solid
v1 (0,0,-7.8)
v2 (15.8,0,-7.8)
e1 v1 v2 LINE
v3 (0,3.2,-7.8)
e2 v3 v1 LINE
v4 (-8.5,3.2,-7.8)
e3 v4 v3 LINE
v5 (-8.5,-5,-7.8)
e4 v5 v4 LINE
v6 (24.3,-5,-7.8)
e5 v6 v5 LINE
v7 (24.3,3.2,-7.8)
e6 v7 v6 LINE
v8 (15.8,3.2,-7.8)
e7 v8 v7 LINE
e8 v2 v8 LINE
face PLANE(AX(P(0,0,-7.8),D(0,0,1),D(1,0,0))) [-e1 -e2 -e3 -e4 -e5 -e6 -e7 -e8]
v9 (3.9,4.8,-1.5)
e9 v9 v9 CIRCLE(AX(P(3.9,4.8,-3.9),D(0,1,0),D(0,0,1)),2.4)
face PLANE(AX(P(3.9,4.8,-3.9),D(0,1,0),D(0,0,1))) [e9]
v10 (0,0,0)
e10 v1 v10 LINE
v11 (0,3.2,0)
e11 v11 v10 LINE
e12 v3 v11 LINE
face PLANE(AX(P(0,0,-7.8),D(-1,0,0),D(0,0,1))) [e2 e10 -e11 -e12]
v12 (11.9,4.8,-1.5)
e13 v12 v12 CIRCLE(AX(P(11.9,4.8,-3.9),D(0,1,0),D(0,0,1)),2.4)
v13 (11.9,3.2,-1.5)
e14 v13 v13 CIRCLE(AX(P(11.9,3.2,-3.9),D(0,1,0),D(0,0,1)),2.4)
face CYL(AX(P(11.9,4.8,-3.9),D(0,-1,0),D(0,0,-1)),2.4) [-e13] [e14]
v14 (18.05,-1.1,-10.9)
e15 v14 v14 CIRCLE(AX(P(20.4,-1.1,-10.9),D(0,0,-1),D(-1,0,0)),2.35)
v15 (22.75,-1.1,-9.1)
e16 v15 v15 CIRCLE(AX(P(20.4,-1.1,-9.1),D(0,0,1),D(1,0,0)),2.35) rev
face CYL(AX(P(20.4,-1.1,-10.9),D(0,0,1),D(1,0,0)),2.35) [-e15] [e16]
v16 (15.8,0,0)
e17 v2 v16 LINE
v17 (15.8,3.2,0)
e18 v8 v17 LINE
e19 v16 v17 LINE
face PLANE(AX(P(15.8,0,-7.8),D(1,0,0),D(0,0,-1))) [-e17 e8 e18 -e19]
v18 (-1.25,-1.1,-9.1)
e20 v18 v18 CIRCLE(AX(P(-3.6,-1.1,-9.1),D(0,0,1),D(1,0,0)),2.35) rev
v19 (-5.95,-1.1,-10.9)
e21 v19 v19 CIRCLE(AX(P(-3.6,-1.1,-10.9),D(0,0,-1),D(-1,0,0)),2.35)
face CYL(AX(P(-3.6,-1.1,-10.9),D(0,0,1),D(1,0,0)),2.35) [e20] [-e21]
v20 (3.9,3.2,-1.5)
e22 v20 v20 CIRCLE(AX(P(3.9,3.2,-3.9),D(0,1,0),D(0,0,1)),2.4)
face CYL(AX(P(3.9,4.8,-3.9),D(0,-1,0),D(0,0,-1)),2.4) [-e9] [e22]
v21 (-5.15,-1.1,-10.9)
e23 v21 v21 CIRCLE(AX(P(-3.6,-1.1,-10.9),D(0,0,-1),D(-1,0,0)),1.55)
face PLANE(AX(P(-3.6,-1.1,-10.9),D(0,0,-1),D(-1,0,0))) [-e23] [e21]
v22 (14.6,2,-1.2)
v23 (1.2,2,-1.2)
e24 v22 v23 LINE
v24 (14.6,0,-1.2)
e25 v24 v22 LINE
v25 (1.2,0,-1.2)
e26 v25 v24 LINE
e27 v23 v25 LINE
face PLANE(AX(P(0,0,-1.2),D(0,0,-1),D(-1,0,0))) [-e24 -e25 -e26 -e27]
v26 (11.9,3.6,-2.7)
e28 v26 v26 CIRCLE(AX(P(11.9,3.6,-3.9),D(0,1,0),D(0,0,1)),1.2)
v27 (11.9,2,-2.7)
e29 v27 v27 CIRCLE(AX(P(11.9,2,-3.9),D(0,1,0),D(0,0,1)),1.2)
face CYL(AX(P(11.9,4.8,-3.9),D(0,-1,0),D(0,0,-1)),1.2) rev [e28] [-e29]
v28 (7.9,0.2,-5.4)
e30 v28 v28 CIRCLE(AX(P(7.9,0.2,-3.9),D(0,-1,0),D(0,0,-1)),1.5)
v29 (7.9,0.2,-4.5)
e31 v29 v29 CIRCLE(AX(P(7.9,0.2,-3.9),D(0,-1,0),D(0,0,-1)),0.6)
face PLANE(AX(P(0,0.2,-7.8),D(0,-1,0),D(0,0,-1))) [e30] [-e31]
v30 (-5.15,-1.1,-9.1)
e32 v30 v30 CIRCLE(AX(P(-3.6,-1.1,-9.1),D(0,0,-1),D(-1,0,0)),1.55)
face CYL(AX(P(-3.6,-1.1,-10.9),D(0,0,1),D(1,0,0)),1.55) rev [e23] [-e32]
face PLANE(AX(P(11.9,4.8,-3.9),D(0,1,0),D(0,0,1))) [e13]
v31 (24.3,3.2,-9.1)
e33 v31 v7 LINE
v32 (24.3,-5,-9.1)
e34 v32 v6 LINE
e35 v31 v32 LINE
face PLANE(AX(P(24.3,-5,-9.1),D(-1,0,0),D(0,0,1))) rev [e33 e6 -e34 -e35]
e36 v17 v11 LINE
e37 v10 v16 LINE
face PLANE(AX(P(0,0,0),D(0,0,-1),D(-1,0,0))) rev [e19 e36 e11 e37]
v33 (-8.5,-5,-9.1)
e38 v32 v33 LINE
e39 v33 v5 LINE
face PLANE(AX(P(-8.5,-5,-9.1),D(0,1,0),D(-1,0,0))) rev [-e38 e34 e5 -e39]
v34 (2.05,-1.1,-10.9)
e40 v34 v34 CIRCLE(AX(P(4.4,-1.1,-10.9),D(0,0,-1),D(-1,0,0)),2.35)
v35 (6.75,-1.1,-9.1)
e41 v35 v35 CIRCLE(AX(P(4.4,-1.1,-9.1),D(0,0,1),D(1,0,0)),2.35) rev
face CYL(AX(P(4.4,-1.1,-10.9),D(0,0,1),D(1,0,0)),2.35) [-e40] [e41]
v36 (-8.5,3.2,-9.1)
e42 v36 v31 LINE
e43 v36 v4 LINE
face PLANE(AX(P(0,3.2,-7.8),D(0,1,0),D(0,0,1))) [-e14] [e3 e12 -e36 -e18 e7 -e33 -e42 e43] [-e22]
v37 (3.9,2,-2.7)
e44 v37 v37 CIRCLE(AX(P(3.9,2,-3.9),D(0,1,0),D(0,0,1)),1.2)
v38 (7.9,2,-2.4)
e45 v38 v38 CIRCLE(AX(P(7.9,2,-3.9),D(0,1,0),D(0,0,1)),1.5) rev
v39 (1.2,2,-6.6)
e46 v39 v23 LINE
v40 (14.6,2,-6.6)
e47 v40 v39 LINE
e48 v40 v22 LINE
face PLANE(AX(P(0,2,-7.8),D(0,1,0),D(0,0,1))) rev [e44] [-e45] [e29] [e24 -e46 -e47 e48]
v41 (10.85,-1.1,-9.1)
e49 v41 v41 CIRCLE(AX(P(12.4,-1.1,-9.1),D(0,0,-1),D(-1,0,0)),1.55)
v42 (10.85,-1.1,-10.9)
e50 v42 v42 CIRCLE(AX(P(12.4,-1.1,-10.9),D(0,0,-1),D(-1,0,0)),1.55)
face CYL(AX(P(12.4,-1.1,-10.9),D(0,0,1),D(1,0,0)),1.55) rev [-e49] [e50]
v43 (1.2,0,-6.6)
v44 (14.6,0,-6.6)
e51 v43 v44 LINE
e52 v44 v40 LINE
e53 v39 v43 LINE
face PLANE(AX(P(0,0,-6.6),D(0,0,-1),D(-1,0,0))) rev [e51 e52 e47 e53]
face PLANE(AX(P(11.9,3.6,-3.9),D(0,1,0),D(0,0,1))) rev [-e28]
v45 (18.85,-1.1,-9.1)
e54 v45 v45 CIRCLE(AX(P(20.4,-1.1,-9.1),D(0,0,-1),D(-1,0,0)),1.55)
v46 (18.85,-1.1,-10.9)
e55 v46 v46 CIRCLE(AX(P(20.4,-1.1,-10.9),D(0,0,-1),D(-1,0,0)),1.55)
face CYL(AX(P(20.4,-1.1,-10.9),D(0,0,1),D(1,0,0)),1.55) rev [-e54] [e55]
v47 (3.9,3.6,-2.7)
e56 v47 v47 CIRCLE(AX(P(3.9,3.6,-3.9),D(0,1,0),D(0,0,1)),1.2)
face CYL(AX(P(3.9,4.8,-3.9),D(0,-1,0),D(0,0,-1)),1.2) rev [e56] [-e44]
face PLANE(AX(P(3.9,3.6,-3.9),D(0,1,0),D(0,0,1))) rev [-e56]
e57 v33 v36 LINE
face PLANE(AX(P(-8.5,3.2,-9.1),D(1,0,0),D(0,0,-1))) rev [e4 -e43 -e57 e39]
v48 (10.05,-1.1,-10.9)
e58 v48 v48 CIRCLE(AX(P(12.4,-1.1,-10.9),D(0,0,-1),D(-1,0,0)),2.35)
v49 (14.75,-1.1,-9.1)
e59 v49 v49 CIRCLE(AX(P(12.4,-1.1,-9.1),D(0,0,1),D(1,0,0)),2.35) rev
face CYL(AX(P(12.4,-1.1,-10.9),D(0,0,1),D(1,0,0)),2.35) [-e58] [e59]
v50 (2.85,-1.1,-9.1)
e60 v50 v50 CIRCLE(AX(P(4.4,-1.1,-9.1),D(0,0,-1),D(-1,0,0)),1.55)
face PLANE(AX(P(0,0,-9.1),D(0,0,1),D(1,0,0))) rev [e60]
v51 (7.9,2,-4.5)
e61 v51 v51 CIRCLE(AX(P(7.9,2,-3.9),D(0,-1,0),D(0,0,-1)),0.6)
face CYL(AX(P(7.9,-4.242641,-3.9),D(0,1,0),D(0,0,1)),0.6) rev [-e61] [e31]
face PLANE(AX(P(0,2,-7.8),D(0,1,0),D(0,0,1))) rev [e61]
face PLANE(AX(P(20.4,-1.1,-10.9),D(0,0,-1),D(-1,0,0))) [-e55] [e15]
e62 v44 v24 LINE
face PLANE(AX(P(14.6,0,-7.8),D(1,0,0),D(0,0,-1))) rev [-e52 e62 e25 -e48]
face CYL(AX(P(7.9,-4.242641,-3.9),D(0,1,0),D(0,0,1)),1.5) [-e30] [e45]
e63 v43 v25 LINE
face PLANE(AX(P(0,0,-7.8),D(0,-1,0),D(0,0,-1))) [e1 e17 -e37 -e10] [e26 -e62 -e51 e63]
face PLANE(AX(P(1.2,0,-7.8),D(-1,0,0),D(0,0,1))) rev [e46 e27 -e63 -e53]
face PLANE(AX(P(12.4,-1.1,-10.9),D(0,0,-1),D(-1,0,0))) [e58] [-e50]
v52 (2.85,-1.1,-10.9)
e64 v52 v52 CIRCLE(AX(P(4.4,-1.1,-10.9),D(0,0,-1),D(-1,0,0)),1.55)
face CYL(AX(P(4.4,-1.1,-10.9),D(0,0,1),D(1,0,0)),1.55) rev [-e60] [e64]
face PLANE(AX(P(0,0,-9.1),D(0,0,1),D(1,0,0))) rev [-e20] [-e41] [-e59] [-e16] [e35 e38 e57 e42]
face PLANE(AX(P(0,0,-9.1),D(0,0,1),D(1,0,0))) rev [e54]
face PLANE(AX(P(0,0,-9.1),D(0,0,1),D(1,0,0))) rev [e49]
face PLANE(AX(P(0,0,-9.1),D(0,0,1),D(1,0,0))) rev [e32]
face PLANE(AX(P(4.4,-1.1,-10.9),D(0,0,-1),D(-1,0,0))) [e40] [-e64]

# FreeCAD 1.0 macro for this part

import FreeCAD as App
import Part
import Sketcher
from FreeCAD import Vector
Q = App.Units.Quantity


def faces_at(feature, points):
    """Names of the faces that lie closest to the given points."""
    faces = feature.Shape.Faces
    near = lambda p: min(range(len(faces)), key=lambda i: faces[i].distToShape(Part.Vertex(*p))[0])
    return sorted({f"Face{near(p) + 1}" for p in points})


def add_polygon(sketch, points):
    """Adds a closed chain of lines whose ends are joined by coincident constraints."""
    first, n = sketch.GeometryCount, len(points)
    for a, b in zip(points, points[1:] + points[:1]):
        sketch.addGeometry(Part.LineSegment(App.Vector(*a, 0), App.Vector(*b, 0)), False)
    for i in range(n):
        sketch.addConstraint(Sketcher.Constraint("Coincident", first + i, 2, first + (i + 1) % n, 1))

doc = App.newDocument("Part")
body = doc.addObject("PartDesign::Body", "Body")

# Sketch on XY plane
sketch1 = doc.addObject("Sketcher::SketchObject", "Sketch")
body.addObject(sketch1)
sketch1.AttachmentSupport = (doc.XY_Plane, [""])
sketch1.MapMode = "FlatFace"
add_polygon(sketch1, [(0, 3.2), (0, 0), (15.8, 0), (15.8, 3.2)])  # lines 0-3
sketch1.addConstraint([
    Sketcher.Constraint("Vertical", 0),
    Sketcher.Constraint("Horizontal", 1),
    Sketcher.Constraint("Vertical", 2),
    Sketcher.Constraint("Horizontal", 3),
    Sketcher.Constraint("Coincident", 0, 2, -1, 1),
    Sketcher.Constraint("DistanceX", 1, 1, 1, 2, Q("15.8 mm")),
    Sketcher.Constraint("DistanceY", 0, 2, 0, 1, Q("3.2 mm")),
])
pad1 = doc.addObject("PartDesign::Pad", "Pad")
body.addObject(pad1)
pad1.Profile = sketch1
pad1.Length = 7.8
pad1.Reversed = True

# Sketch on XZ plane
sketch2 = doc.addObject("Sketcher::SketchObject", "Sketch001")
body.addObject(sketch2)
sketch2.AttachmentSupport = (doc.XZ_Plane, [""])
sketch2.MapMode = "FlatFace"
sketch2.AttachmentOffset = App.Placement(Vector(0, 0, -3.2), App.Rotation())
sketch2.addGeometry(Part.Circle(Vector(3.9, -3.9, 0), Vector(0, 0, 1), 2.4), False)
sketch2.addConstraint([
    Sketcher.Constraint("Diameter", 0, Q("4.8 mm")),
    Sketcher.Constraint("DistanceX", -1, 1, 0, 3, Q("3.9 mm")),
    Sketcher.Constraint("DistanceY", 0, 3, -1, 1, Q("3.9 mm")),
])
pad2 = doc.addObject("PartDesign::Pad", "Pad001")
body.addObject(pad2)
pad2.Profile = sketch2
pad2.Length = 1.6
pad2.Reversed = True
doc.recompute()

linearpattern = doc.addObject("PartDesign::LinearPattern", "LinearPattern")
body.addObject(linearpattern)
linearpattern.Originals = [pad2]
linearpattern.Direction = (doc.X_Axis, [""])
linearpattern.Mode = "offset"
linearpattern.Offset = 8
linearpattern.Occurrences = 2
body.Tip = linearpattern
doc.recompute()

thickness = doc.addObject("PartDesign::Thickness", "Thickness")
body.addObject(thickness)
thickness.Base = (linearpattern, faces_at(linearpattern, [(7.9, 0, -3.9)]))
thickness.Value = 1.2
thickness.Reversed = True
thickness.Join = "Intersection"

# Sketch on XZ plane
sketch3 = doc.addObject("Sketcher::SketchObject", "Sketch002")
body.addObject(sketch3)
sketch3.AttachmentSupport = (doc.XZ_Plane, [""])
sketch3.MapMode = "FlatFace"
sketch3.AttachmentOffset = App.Placement(Vector(0, 0, -2), App.Rotation())
sketch3.addGeometry([
    Part.Circle(Vector(7.9, -3.9, 0), Vector(0, 0, 1), 1.5),
    Part.Circle(Vector(7.9, -3.9, 0), Vector(0, 0, 1), 0.6),
], False)
sketch3.addConstraint([
    Sketcher.Constraint("Coincident", 1, 3, 0, 3),
    Sketcher.Constraint("Diameter", 0, Q("3 mm")),
    Sketcher.Constraint("Diameter", 1, Q("1.2 mm")),
    Sketcher.Constraint("DistanceX", -1, 1, 0, 3, Q("7.9 mm")),
    Sketcher.Constraint("DistanceY", 0, 3, -1, 1, Q("3.9 mm")),
])
pad3 = doc.addObject("PartDesign::Pad", "Pad002")
body.addObject(pad3)
pad3.Profile = sketch3
pad3.Length = 1.8

# Sketch on XY plane
sketch4 = doc.addObject("Sketcher::SketchObject", "Sketch003")
body.addObject(sketch4)
sketch4.AttachmentSupport = (doc.XY_Plane, [""])
sketch4.MapMode = "FlatFace"
sketch4.AttachmentOffset = App.Placement(Vector(0, 0, -7.8), App.Rotation())
add_polygon(sketch4, [(24, 3), (24, -5), (-8, -5), (-8, 3)])  # lines 0-3
sketch4.addConstraint([
    Sketcher.Constraint("Vertical", 0),
    Sketcher.Constraint("Horizontal", 1),
    Sketcher.Constraint("Vertical", 2),
    Sketcher.Constraint("Horizontal", 3),
    Sketcher.Constraint("DistanceX", 1, 2, 1, 1, Q("32.8 mm")),
    Sketcher.Constraint("DistanceY", 0, 2, 0, 1, Q("8.2 mm")),
    Sketcher.Constraint("DistanceY", 0, 2, -1, 1, Q("5 mm")),
    Sketcher.Constraint("DistanceX", -1, 1, 0, 2, Q("24.3 mm")),
])
pad4 = doc.addObject("PartDesign::Pad", "Pad003")
body.addObject(pad4)
pad4.Profile = sketch4
pad4.Length = 1.3
pad4.Reversed = True

# Sketch on XY plane
sketch5 = doc.addObject("Sketcher::SketchObject", "Sketch004")
body.addObject(sketch5)
sketch5.AttachmentSupport = (doc.XY_Plane, [""])
sketch5.MapMode = "FlatFace"
sketch5.AttachmentOffset = App.Placement(Vector(0, 0, -9.1), App.Rotation())
sketch5.addGeometry([
    Part.Circle(Vector(20.4, -1.1, 0), Vector(0, 0, 1), 2.4),
    Part.Circle(Vector(20.4, -1.1, 0), Vector(0, 0, 1), 1.6),
], False)
sketch5.addConstraint([
    Sketcher.Constraint("Coincident", 1, 3, 0, 3),
    Sketcher.Constraint("Diameter", 0, Q("4.7 mm")),
    Sketcher.Constraint("Diameter", 1, Q("3.1 mm")),
    Sketcher.Constraint("DistanceX", -1, 1, 0, 3, Q("20.4 mm")),
    Sketcher.Constraint("DistanceY", 0, 3, -1, 1, Q("1.1 mm")),
])
pad5 = doc.addObject("PartDesign::Pad", "Pad004")
body.addObject(pad5)
pad5.Profile = sketch5
pad5.Length = 1.8
pad5.Reversed = True
doc.recompute()

linearpattern2 = doc.addObject("PartDesign::LinearPattern", "LinearPattern001")
body.addObject(linearpattern2)
linearpattern2.Originals = [pad5]
linearpattern2.Direction = (doc.X_Axis, [""])
linearpattern2.Mode = "offset"
linearpattern2.Offset = 8
linearpattern2.Occurrences = 4
linearpattern2.Reversed = True
body.Tip = linearpattern2

doc.recompute()
